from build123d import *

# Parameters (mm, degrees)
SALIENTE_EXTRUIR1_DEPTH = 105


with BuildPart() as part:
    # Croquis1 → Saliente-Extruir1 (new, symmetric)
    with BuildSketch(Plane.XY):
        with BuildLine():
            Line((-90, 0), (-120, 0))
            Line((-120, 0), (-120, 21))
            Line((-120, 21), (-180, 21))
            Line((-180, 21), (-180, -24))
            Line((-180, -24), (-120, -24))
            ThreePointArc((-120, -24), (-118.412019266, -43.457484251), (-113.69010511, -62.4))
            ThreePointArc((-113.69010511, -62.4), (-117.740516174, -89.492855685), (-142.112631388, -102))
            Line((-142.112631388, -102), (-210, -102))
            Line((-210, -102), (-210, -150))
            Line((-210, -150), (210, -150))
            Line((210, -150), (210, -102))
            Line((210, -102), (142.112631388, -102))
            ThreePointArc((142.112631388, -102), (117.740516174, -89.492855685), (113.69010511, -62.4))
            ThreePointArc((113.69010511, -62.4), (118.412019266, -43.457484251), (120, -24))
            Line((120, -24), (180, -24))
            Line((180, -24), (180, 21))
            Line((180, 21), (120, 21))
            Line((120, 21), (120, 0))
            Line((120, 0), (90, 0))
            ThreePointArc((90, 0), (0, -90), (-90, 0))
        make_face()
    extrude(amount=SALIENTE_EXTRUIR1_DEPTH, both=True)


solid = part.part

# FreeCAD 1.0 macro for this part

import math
import FreeCAD as App
import Part
import Sketcher

V = App.Vector

doc = App.newDocument("Part")
body = doc.addObject("PartDesign::Body", "Body")

# Sketch on XY plane
sketch1 = body.newObject("Sketcher::SketchObject", "Sketch")
sketch1.AttachmentSupport = (doc.getObject("XY_Plane"), [""])
sketch1.MapMode = "FlatFace"
sketch1.addGeometry([
    Part.LineSegment(V(-90, 0, 0), V(-120, 0, 0)),  # 0
    Part.LineSegment(V(-120, 0, 0), V(-120, 21, 0)),  # 1
    Part.LineSegment(V(-120, 21, 0), V(-180, 21, 0)),  # 2
    Part.LineSegment(V(-180, 21, 0), V(-180, -24, 0)),  # 3
    Part.LineSegment(V(-180, -24, 0), V(-120, -24, 0)),  # 4
    Part.ArcOfCircle(Part.Circle(V(0, -24, 0), V(0, 0, 1), 120), math.radians(180), math.radians(198.662925)),  # 5
    Part.ArcOfCircle(Part.Circle(V(-142.112631, -72, 0), V(0, 0, 1), 30), math.radians(-90), math.radians(18.662925)),  # 6
    Part.LineSegment(V(-142.112631, -102, 0), V(-210, -102, 0)),  # 7
    Part.LineSegment(V(-210, -102, 0), V(-210, -150, 0)),  # 8
    Part.LineSegment(V(-210, -150, 0), V(210, -150, 0)),  # 9
    Part.LineSegment(V(210, -150, 0), V(210, -102, 0)),  # 10
    Part.LineSegment(V(210, -102, 0), V(142.112631, -102, 0)),  # 11
    Part.ArcOfCircle(Part.Circle(V(142.112631, -72, 0), V(0, 0, 1), 30), math.radians(161.337075), math.radians(270)),  # 12
    Part.ArcOfCircle(Part.Circle(V(0, -24, 0), V(0, 0, 1), 120), math.radians(-18.662925), math.radians(0)),  # 13
    Part.LineSegment(V(120, -24, 0), V(180, -24, 0)),  # 14
    Part.LineSegment(V(180, -24, 0), V(180, 21, 0)),  # 15
    Part.LineSegment(V(180, 21, 0), V(120, 21, 0)),  # 16
    Part.LineSegment(V(120, 21, 0), V(120, 0, 0)),  # 17
    Part.LineSegment(V(120, 0, 0), V(90, 0, 0)),  # 18
    Part.ArcOfCircle(Part.Circle(V(0, 0, 0), V(0, 0, 1), 90), math.radians(180), math.radians(360)),  # 19
], False)
sketch1.addConstraint([
    Sketcher.Constraint("Coincident", 0, 2, 1, 1),
    Sketcher.Constraint("Coincident", 1, 2, 2, 1),
    Sketcher.Constraint("Coincident", 2, 2, 3, 1),
    Sketcher.Constraint("Coincident", 3, 2, 4, 1),
    Sketcher.Constraint("Coincident", 4, 2, 5, 1),
    Sketcher.Constraint("Tangent", 5, 2, 6, 2),
    Sketcher.Constraint("Tangent", 6, 1, 7, 1),
    Sketcher.Constraint("Coincident", 7, 2, 8, 1),
    Sketcher.Constraint("Coincident", 8, 2, 9, 1),
    Sketcher.Constraint("Coincident", 9, 2, 10, 1),
    Sketcher.Constraint("Coincident", 10, 2, 11, 1),
    Sketcher.Constraint("Tangent", 11, 2, 12, 2),
    Sketcher.Constraint("Tangent", 12, 1, 13, 1),
    Sketcher.Constraint("Coincident", 13, 2, 14, 1),
    Sketcher.Constraint("Coincident", 14, 2, 15, 1),
    Sketcher.Constraint("Coincident", 15, 2, 16, 1),
    Sketcher.Constraint("Coincident", 16, 2, 17, 1),
    Sketcher.Constraint("Coincident", 17, 2, 18, 1),
    Sketcher.Constraint("Coincident", 18, 2, 19, 2),
    Sketcher.Constraint("Coincident", 19, 1, 0, 1),
    Sketcher.Constraint("Horizontal", 0),
    Sketcher.Constraint("Vertical", 1),
    Sketcher.Constraint("Horizontal", 2),
    Sketcher.Constraint("Vertical", 3),
    Sketcher.Constraint("Horizontal", 4),
    Sketcher.Constraint("Horizontal", 7),
    Sketcher.Constraint("Vertical", 8),
    Sketcher.Constraint("Horizontal", 9),
    Sketcher.Constraint("Vertical", 10),
    Sketcher.Constraint("Horizontal", 11),
    Sketcher.Constraint("Horizontal", 14),
    Sketcher.Constraint("Vertical", 15),
    Sketcher.Constraint("Horizontal", 16),
    Sketcher.Constraint("Vertical", 17),
    Sketcher.Constraint("Horizontal", 18),
    Sketcher.Constraint("Coincident", 19, 3, -1, 1),
    Sketcher.Constraint("Coincident", 13, 3, 5, 3),
    Sketcher.Constraint("Equal", 6, 12),
    Sketcher.Constraint("Equal", 5, 13),
    Sketcher.Constraint("Symmetric", 0, 2, 17, 2, -1, 1),
    Sketcher.Constraint("Symmetric", 6, 3, 12, 3, -2),
    Sketcher.Constraint("Symmetric", 3, 2, 14, 2, -2),
    Sketcher.Constraint("PointOnObject", 0, 2, -1),
    Sketcher.Constraint("Horizontal", 13, 3, 3, 2),
    Sketcher.Constraint("Horizontal", 2, 2, 15, 2),
    Sketcher.Constraint("Vertical", 1, 2, 4, 2),
    Sketcher.Constraint("Equal", 7, 11),
    Sketcher.Constraint("Radius", 5, 120.0),
    Sketcher.Constraint("Radius", 6, 30.0),
    Sketcher.Constraint("Radius", 19, 90.0),
    Sketcher.Constraint("DistanceX", 2, 2, 2, 1, 60.0),
    Sketcher.Constraint("DistanceX", 9, 1, 9, 2, 420.0),
    Sketcher.Constraint("DistanceY", 1, 1, 1, 2, 21.0),
    Sketcher.Constraint("DistanceY", 3, 2, 3, 1, 45.0),
    Sketcher.Constraint("DistanceY", 8, 2, 8, 1, 48.0),
    Sketcher.Constraint("DistanceY", 6, 3, -1, 1, 72.0),
])
pad1 = body.newObject("PartDesign::Pad", "Pad")
pad1.Profile = sketch1
pad1.Length = 210
pad1.Midplane = True

doc.recompute()
